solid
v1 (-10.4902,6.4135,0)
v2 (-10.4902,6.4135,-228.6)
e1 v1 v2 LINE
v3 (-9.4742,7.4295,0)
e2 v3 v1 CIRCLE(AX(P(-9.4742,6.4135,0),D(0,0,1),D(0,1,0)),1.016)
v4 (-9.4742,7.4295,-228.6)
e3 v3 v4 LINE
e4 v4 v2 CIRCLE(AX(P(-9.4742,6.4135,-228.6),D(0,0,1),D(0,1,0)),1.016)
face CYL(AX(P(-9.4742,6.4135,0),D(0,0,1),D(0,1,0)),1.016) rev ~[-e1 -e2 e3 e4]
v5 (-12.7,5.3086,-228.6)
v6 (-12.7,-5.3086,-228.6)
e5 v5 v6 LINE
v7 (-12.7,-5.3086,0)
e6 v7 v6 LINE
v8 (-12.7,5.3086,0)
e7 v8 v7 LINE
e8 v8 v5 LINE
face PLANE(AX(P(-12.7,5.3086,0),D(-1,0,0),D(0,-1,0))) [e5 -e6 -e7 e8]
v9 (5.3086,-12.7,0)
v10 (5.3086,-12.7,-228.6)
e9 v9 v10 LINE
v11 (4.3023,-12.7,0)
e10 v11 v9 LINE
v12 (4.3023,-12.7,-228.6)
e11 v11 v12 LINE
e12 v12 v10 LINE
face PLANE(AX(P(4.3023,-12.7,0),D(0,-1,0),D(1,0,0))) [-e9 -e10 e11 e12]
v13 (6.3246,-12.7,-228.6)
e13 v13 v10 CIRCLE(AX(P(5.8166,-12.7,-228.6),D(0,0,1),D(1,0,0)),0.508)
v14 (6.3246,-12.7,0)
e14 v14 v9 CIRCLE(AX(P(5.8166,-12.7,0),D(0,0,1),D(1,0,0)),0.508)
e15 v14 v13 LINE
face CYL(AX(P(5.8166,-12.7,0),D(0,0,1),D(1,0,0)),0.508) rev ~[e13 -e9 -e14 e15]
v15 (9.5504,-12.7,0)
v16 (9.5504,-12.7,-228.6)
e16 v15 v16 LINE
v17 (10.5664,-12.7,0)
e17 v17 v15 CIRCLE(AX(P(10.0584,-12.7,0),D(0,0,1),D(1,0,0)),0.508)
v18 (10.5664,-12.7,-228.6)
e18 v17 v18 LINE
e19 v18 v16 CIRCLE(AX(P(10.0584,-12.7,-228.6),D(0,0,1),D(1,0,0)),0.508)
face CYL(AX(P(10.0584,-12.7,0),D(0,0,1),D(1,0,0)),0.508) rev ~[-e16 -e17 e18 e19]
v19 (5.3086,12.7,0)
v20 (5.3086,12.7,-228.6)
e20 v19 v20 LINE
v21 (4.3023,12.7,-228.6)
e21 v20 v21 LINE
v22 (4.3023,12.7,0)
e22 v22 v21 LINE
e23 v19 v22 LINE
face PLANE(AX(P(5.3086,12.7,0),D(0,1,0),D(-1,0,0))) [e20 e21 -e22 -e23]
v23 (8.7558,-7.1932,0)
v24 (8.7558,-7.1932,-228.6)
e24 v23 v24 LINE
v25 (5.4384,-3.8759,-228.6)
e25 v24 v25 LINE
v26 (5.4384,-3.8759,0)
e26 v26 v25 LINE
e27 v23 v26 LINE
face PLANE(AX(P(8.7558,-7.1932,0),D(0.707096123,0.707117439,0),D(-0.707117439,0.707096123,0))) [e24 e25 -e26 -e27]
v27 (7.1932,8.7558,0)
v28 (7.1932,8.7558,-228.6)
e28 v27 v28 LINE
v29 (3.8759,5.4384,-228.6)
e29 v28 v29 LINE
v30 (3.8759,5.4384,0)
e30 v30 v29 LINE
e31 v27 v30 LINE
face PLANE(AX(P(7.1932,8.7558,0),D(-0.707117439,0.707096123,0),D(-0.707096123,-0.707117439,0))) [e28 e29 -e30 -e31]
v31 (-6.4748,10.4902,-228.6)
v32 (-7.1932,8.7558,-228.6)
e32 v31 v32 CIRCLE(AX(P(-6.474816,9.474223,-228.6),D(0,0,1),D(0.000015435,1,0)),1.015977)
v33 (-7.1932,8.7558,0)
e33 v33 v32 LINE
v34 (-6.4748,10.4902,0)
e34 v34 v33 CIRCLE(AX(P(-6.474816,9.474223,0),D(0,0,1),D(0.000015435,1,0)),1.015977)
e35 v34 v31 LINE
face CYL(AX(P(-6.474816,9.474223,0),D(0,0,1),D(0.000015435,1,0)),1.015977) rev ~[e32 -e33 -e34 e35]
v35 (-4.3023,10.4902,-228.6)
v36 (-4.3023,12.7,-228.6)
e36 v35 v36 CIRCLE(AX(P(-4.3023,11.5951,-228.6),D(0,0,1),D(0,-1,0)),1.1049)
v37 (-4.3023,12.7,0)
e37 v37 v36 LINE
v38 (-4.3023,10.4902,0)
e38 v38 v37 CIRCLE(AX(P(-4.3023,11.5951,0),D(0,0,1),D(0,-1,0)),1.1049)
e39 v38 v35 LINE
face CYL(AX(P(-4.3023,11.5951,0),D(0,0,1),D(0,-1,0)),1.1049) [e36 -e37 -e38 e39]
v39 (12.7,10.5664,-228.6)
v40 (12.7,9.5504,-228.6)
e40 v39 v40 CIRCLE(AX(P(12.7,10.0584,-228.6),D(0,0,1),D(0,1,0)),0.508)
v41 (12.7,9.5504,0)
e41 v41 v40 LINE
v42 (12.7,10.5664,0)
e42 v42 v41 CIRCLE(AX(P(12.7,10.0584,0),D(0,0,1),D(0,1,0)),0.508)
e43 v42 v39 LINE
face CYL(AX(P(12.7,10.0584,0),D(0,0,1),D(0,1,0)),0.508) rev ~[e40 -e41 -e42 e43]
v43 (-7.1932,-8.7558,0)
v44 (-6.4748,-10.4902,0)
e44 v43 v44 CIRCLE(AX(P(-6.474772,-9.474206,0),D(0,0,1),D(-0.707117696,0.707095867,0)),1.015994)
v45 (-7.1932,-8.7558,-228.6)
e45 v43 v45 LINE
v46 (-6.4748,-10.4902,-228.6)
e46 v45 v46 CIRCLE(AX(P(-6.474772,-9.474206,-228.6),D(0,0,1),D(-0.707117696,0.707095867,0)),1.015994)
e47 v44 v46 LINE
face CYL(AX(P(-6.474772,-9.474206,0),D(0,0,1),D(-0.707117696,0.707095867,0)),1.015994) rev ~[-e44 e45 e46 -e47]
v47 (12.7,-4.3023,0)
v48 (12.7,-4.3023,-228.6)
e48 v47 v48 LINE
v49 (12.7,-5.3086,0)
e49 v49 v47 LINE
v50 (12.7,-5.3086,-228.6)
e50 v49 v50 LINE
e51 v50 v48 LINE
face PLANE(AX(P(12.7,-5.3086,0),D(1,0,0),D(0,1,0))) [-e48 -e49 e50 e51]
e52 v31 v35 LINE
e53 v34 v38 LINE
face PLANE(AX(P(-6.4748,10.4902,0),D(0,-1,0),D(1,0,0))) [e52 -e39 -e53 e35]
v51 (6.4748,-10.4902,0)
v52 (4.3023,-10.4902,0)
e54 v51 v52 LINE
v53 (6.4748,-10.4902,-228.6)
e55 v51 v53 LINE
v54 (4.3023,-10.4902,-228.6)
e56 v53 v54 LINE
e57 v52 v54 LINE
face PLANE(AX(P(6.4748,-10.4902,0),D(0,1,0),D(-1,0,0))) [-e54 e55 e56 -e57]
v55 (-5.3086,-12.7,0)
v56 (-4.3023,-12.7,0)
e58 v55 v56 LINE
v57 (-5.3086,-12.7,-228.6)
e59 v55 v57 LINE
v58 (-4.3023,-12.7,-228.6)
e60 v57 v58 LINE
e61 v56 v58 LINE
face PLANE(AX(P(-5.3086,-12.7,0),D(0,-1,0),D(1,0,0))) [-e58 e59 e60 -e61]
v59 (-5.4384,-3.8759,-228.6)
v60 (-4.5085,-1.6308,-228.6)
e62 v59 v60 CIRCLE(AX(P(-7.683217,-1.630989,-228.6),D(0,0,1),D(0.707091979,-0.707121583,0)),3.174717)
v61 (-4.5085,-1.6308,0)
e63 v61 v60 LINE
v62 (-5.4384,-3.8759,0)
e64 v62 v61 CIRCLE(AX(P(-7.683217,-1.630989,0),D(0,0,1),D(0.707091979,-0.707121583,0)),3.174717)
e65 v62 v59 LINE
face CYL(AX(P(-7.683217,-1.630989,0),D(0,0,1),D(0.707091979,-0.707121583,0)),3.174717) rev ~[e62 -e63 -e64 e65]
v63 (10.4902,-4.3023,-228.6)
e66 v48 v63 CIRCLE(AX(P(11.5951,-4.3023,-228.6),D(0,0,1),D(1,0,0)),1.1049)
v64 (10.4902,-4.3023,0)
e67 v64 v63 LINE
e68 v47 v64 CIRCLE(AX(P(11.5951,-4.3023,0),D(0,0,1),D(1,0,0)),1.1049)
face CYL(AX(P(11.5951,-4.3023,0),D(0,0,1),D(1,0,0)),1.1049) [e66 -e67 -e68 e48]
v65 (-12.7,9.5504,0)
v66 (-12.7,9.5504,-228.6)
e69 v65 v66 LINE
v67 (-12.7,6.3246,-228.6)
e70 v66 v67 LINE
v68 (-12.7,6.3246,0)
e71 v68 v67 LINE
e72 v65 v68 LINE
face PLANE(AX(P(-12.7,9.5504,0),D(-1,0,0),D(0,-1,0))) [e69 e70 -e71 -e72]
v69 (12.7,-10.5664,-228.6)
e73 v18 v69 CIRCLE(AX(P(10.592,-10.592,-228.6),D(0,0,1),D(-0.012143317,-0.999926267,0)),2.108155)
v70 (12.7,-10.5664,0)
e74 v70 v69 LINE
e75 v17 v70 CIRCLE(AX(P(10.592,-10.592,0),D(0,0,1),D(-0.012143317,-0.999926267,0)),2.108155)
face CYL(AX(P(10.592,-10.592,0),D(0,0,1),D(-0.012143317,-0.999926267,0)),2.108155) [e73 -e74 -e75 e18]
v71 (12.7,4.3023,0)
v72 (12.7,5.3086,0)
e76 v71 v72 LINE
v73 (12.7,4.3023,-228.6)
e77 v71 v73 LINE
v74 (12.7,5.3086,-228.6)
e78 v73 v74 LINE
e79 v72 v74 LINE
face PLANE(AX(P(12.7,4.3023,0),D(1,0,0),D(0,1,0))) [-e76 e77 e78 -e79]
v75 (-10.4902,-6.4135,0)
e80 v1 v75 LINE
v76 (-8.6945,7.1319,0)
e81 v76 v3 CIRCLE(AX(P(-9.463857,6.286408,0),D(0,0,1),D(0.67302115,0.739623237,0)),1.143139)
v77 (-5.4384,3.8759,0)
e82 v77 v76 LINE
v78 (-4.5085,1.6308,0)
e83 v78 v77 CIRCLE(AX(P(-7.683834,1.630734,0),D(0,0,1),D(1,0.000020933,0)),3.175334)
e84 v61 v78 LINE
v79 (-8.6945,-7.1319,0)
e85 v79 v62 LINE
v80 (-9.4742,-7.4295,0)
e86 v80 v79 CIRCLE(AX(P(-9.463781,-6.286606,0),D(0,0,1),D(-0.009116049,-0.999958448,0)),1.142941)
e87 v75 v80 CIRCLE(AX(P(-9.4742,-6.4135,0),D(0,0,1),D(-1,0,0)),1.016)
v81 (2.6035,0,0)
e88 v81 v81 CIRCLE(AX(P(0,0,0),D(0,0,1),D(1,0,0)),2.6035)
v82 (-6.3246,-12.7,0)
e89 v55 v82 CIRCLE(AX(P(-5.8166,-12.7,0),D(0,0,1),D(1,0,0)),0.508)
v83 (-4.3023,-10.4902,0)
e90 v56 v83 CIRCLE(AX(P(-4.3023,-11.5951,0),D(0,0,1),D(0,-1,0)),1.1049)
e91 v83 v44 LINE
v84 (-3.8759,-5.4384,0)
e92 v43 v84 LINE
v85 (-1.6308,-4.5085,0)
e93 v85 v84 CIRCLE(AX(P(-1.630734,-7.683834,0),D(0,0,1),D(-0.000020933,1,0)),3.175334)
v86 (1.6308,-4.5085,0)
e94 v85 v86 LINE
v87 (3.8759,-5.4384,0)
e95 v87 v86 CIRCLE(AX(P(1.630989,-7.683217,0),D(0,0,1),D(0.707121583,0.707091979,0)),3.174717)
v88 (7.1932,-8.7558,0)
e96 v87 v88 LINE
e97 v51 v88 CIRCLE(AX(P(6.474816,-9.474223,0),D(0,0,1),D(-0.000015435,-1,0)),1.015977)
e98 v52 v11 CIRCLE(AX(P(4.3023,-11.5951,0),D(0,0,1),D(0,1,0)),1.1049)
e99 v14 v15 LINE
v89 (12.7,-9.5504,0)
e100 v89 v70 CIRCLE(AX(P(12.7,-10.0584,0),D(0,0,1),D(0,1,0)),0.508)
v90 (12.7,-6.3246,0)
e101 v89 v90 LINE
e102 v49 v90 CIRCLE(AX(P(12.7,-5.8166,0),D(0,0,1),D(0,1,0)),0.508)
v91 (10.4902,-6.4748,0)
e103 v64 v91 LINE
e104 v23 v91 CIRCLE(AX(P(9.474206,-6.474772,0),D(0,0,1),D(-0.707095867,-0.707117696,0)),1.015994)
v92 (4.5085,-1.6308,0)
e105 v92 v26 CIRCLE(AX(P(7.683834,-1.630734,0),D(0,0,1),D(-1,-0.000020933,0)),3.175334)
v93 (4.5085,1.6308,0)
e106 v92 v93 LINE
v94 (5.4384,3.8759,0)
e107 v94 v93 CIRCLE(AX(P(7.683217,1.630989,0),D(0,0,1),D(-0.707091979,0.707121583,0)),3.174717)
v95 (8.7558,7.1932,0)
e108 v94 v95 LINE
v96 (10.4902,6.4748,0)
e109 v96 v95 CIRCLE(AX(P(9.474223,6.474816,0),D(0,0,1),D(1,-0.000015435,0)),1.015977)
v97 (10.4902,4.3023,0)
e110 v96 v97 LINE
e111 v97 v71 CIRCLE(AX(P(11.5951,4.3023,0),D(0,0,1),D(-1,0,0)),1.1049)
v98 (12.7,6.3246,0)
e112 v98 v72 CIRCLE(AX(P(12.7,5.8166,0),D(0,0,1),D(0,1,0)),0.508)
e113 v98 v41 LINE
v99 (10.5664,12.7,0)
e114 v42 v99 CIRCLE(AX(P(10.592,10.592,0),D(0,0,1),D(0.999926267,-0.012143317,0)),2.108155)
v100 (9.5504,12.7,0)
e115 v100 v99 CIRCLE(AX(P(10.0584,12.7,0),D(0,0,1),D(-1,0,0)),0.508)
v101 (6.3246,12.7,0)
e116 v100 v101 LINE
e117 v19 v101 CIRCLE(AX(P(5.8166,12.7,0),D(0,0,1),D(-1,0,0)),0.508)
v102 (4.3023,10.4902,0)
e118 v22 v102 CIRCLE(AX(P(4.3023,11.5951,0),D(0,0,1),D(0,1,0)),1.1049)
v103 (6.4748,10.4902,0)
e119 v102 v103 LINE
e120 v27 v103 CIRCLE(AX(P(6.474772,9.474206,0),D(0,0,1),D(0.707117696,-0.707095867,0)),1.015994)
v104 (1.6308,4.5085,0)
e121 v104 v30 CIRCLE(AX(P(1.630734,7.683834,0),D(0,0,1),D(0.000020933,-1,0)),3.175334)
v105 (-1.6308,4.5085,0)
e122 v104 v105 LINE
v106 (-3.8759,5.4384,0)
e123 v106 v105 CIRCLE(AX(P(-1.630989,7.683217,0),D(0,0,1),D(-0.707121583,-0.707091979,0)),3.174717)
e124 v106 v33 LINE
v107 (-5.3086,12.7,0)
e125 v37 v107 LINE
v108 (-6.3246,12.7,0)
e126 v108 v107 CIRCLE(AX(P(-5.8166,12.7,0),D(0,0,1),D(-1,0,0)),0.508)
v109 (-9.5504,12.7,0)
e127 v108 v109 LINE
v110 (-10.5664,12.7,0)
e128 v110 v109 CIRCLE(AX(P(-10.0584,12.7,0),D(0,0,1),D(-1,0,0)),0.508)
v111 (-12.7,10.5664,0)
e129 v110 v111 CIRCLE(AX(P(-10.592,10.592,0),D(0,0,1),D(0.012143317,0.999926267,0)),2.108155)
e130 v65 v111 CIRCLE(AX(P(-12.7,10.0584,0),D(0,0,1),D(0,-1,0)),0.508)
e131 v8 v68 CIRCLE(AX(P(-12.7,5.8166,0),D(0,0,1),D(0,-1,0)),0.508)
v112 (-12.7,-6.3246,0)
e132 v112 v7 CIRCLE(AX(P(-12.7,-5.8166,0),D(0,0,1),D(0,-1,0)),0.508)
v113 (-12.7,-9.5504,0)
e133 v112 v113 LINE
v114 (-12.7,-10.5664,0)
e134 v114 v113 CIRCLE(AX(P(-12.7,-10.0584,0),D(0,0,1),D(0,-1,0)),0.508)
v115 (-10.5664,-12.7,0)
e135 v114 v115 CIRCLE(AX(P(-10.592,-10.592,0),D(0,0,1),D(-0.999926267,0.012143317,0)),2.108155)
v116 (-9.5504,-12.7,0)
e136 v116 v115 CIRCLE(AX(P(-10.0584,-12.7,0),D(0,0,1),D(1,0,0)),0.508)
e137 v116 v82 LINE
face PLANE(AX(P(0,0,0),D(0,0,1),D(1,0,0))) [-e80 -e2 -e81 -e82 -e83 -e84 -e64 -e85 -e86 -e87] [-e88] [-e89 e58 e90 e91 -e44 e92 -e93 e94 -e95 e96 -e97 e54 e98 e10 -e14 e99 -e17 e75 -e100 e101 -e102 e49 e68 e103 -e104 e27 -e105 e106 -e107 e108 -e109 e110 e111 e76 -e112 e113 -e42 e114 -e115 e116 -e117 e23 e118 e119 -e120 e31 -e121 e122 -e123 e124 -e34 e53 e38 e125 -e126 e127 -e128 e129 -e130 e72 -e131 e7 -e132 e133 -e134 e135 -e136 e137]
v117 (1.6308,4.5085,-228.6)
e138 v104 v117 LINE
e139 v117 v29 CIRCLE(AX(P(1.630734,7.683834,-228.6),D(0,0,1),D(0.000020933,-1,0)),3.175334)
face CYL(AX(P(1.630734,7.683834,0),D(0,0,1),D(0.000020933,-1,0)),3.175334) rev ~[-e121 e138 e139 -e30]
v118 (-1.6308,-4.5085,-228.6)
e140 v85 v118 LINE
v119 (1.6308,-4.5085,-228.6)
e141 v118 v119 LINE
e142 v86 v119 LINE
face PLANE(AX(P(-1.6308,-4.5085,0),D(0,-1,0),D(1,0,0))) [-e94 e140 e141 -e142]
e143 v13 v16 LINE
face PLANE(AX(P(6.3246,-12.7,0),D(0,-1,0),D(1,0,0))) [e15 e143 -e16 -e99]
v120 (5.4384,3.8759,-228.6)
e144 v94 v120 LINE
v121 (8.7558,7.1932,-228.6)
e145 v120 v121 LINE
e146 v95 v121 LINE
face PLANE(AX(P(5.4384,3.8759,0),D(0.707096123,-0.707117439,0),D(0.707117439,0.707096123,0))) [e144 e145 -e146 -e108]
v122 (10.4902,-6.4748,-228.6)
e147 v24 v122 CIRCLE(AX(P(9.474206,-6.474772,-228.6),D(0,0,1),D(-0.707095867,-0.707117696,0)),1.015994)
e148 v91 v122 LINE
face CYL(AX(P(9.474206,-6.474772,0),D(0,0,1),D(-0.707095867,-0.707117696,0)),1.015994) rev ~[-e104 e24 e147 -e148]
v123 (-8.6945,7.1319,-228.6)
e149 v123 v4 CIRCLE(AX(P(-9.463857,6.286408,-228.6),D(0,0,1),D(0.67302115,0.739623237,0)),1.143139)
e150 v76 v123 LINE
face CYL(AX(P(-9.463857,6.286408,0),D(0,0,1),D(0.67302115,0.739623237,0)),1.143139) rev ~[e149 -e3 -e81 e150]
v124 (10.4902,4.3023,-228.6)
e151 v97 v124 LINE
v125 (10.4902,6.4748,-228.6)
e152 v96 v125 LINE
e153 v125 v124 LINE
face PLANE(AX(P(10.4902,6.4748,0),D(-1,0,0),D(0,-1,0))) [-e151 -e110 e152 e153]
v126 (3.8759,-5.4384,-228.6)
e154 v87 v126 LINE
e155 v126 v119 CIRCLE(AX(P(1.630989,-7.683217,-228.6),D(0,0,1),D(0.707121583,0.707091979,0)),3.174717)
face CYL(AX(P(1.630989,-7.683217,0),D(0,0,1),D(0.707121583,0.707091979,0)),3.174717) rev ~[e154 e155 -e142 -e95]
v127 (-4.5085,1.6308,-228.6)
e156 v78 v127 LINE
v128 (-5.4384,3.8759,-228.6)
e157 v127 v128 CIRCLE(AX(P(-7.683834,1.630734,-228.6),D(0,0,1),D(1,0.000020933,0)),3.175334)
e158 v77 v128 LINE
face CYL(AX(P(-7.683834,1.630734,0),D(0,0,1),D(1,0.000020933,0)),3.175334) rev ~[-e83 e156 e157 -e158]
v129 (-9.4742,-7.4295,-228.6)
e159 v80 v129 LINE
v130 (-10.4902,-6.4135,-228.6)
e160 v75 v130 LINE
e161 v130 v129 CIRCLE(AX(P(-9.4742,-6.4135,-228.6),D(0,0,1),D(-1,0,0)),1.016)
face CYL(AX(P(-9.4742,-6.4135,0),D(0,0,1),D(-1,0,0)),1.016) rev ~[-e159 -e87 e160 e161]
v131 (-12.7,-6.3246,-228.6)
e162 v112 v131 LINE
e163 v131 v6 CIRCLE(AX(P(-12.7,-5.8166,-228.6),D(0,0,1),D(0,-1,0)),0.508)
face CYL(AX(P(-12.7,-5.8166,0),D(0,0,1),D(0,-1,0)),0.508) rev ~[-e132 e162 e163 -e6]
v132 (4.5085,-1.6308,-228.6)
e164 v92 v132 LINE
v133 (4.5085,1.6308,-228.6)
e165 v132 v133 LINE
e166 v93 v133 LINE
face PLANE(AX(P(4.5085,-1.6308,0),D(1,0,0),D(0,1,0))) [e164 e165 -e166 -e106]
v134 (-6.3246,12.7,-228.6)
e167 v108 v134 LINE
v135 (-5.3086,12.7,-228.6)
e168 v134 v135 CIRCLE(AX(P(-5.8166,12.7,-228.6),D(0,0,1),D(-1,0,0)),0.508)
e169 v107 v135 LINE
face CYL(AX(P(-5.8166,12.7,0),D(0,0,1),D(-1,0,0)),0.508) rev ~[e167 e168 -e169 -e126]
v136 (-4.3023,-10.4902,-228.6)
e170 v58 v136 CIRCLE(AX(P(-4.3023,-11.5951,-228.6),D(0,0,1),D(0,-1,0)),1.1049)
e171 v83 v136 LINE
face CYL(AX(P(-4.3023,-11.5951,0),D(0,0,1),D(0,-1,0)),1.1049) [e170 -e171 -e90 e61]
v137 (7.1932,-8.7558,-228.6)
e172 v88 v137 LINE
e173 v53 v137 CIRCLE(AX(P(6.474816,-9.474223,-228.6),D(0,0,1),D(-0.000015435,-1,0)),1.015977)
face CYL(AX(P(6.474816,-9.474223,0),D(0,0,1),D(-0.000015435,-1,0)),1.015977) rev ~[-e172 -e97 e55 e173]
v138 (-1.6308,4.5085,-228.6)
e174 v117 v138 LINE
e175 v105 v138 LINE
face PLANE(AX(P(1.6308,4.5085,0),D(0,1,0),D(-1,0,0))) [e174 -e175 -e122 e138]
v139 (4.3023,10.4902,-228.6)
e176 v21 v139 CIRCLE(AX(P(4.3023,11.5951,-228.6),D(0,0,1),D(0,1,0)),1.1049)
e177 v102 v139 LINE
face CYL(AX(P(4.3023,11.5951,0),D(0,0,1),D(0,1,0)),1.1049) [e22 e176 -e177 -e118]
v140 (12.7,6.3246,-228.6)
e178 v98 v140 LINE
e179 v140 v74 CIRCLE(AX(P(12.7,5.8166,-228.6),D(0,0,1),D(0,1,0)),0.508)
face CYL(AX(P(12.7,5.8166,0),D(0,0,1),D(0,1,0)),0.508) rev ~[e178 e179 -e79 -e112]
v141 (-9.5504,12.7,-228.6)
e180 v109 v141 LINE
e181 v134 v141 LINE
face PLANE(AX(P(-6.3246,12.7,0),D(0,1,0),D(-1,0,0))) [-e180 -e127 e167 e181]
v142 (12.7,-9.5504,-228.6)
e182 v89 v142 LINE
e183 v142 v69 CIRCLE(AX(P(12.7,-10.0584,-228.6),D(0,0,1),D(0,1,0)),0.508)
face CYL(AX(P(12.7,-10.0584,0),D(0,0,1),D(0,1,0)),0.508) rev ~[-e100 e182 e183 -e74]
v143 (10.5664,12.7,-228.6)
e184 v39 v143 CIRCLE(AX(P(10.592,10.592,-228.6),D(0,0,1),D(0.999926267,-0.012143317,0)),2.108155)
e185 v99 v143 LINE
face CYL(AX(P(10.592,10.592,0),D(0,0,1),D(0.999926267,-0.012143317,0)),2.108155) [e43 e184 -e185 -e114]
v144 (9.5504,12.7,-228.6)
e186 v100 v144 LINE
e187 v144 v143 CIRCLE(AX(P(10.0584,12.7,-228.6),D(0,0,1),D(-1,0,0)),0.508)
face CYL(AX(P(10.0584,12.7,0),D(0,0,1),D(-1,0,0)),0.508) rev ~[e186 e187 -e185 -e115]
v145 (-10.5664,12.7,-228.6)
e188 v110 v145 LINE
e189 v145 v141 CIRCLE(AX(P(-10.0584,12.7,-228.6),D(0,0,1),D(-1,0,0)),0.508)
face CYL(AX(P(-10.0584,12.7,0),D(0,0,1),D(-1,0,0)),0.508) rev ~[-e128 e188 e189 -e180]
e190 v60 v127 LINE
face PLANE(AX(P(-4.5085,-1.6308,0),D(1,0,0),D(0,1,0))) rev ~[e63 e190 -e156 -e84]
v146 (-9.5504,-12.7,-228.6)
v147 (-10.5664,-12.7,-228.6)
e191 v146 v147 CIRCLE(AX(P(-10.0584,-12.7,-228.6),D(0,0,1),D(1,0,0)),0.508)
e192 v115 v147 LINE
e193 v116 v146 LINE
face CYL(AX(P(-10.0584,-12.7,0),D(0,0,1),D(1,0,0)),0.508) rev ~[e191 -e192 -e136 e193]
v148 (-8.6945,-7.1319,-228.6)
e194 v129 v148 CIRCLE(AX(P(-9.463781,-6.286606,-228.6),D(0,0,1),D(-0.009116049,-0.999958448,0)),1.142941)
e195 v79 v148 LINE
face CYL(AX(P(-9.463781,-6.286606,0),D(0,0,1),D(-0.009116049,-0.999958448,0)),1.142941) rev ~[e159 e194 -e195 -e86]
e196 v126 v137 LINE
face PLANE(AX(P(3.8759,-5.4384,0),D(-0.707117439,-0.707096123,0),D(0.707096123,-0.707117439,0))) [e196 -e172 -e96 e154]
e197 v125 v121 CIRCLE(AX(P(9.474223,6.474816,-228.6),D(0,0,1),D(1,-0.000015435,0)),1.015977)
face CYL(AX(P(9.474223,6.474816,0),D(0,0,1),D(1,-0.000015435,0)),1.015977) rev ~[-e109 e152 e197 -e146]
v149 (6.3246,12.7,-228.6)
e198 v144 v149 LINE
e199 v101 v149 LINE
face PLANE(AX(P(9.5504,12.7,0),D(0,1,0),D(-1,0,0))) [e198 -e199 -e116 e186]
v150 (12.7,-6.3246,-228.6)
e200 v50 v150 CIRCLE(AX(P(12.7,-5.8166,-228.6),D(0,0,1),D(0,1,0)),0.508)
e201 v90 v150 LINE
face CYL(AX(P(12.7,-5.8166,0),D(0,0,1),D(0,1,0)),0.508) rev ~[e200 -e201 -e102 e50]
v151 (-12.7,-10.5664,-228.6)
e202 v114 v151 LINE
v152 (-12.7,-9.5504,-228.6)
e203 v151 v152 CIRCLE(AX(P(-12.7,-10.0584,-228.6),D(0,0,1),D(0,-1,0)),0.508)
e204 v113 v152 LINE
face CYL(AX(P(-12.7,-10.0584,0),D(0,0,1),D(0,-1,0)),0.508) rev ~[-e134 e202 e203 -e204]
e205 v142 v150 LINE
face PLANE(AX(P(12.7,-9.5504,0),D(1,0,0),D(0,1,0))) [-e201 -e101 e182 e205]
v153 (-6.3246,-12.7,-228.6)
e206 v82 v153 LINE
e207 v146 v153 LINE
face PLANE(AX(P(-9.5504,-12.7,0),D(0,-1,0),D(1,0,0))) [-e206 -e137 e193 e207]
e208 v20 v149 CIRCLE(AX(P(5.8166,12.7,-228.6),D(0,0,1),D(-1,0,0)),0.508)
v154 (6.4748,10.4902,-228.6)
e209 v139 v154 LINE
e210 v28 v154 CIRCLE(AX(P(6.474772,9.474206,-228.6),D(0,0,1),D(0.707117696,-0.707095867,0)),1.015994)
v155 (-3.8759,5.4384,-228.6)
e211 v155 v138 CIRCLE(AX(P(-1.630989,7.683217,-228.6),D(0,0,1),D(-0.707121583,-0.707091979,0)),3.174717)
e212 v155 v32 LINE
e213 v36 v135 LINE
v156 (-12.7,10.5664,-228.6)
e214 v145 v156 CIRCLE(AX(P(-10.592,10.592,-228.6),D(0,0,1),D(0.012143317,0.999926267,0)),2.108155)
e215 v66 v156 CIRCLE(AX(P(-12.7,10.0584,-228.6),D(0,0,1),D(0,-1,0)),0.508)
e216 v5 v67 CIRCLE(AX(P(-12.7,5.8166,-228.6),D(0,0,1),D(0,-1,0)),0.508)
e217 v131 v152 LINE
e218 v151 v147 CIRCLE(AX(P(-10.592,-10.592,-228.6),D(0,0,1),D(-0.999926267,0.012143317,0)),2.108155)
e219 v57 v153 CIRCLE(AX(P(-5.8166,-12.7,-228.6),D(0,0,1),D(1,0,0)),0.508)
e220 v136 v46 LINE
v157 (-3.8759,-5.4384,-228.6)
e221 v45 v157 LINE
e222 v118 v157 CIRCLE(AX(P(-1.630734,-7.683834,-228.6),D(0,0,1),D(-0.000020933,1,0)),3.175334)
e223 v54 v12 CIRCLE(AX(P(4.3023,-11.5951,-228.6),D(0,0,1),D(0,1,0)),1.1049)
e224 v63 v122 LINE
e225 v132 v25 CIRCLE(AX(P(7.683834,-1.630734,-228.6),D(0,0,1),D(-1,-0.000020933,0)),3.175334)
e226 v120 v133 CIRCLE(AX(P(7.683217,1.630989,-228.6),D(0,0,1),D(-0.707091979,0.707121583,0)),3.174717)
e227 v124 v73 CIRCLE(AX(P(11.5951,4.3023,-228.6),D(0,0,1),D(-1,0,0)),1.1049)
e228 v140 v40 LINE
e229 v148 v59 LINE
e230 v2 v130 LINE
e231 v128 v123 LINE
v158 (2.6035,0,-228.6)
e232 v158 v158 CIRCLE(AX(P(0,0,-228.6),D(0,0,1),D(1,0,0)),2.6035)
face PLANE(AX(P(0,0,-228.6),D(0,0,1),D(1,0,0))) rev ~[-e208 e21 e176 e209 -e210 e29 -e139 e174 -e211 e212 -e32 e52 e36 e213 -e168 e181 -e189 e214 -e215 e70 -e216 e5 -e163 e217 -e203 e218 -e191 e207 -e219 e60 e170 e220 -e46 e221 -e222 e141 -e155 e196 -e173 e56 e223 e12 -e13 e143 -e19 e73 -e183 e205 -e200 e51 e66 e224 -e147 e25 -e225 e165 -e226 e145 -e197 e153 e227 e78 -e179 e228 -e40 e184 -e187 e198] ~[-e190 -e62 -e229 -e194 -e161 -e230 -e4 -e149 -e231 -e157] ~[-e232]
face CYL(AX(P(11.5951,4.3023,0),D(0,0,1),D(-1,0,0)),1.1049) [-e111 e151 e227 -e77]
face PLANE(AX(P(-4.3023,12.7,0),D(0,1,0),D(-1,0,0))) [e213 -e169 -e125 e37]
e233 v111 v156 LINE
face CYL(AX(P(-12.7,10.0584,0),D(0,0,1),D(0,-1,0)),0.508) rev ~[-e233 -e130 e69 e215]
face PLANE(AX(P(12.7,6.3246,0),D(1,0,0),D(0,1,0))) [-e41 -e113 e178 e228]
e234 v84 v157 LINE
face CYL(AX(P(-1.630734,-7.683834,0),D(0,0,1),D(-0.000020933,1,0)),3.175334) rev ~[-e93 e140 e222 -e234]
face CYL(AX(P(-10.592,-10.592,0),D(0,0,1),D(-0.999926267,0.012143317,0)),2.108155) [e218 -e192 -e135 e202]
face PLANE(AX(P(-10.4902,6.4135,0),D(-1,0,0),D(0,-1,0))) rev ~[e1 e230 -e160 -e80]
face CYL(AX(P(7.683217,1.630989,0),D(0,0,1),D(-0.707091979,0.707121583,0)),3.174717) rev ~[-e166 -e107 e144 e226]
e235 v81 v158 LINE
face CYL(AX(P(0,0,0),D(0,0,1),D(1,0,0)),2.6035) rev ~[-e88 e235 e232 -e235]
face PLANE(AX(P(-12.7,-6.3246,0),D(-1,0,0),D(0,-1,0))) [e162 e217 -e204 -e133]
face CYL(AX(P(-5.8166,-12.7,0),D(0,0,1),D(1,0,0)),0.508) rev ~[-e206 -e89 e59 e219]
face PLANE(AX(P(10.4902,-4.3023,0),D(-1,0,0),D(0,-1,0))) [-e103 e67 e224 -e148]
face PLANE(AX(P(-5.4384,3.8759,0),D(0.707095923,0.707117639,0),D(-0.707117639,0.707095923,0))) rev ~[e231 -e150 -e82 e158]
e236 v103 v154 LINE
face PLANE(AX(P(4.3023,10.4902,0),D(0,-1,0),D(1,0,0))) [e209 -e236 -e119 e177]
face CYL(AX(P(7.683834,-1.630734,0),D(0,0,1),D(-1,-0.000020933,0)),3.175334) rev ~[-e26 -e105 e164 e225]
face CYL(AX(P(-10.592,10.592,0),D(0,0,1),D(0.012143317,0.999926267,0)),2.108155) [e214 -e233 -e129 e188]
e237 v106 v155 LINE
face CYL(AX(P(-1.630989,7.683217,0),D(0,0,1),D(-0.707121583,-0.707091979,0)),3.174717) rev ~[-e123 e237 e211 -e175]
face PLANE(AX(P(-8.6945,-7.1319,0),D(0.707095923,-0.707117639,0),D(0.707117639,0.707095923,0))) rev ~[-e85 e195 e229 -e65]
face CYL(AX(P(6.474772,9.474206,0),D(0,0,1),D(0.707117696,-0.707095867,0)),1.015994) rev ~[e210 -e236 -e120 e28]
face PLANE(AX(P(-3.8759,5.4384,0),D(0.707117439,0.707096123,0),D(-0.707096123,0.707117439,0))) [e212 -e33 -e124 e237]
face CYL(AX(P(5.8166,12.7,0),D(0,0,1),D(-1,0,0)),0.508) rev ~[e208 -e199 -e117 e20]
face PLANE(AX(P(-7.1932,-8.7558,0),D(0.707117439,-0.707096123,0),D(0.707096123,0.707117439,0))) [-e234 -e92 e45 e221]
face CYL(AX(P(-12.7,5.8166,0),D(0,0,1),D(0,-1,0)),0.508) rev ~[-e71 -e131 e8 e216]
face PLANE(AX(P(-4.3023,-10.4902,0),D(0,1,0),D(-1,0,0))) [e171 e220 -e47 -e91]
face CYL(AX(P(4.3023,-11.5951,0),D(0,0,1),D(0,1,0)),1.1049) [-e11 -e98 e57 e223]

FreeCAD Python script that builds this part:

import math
import FreeCAD as App
import Part
import Sketcher
Q = App.Units.Quantity

doc = App.newDocument("Part")
body = doc.addObject("PartDesign::Body", "Body")

# Sketch on XY plane
sketch1 = body.newObject("Sketcher::SketchObject", "Sketch")
sketch1.AttachmentSupport = (doc.getObject("XY_Plane"), [""])
sketch1.MapMode = "FlatFace"
sketch1.addGeometry([
    Part.ArcOfCircle(Part.Circle(App.Vector(-12.7, -10.0584, 0), App.Vector(0, 0, 1), 0.508), math.radians(-90), math.radians(90)),  # 0
    Part.ArcOfCircle(Part.Circle(App.Vector(-10.592, -10.592, 0), App.Vector(0, 0, 1), 2.108155), math.radians(179.304222), math.radians(270.695778)),  # 1
    Part.ArcOfCircle(Part.Circle(App.Vector(-10.0584, -12.7, 0), App.Vector(0, 0, 1), 0.508), math.radians(0), math.radians(180)),  # 2
    Part.LineSegment(App.Vector(-9.5504, -12.7, 0), App.Vector(-6.3246, -12.7, 0)),  # 3
    Part.ArcOfCircle(Part.Circle(App.Vector(-5.8166, -12.7, 0), App.Vector(0, 0, 1), 0.508), math.radians(0), math.radians(180)),  # 4
    Part.LineSegment(App.Vector(-5.3086, -12.7, 0), App.Vector(-4.3023, -12.7, 0)),  # 5
    Part.ArcOfCircle(Part.Circle(App.Vector(-4.3023, -11.5951, 0), App.Vector(0, 0, 1), 1.1049), math.radians(-90), math.radians(90)),  # 6
    Part.LineSegment(App.Vector(-4.3023, -10.4902, 0), App.Vector(-6.4748, -10.4902, 0)),  # 7
    Part.ArcOfCircle(Part.Circle(App.Vector(-6.4748, -9.4742, 0), App.Vector(0, 0, 1), 1.015971), math.radians(135), math.radians(270)),  # 8
    Part.LineSegment(App.Vector(-7.1932, -8.7558, 0), App.Vector(-3.8759, -5.4384, 0)),  # 9
    Part.ArcOfCircle(Part.Circle(App.Vector(-1.6308, -7.6835, 0), App.Vector(0, 0, 1), 3.175), math.radians(90), math.radians(135)),  # 10
    Part.LineSegment(App.Vector(-1.6308, -4.5085, 0), App.Vector(1.6308, -4.5085, 0)),  # 11
    Part.ArcOfCircle(Part.Circle(App.Vector(1.6308, -7.6835, 0), App.Vector(0, 0, 1), 3.175051), math.radians(45), math.radians(90)),  # 12
    Part.LineSegment(App.Vector(3.8759, -5.4384, 0), App.Vector(7.1932, -8.7558, 0)),  # 13
    Part.ArcOfCircle(Part.Circle(App.Vector(6.4748, -9.4742, 0), App.Vector(0, 0, 1), 1.016), math.radians(-90), math.radians(45)),  # 14
    Part.LineSegment(App.Vector(6.4748, -10.4902, 0), App.Vector(4.3023, -10.4902, 0)),  # 15
    Part.ArcOfCircle(Part.Circle(App.Vector(4.3023, -11.5951, 0), App.Vector(0, 0, 1), 1.1049), math.radians(90), math.radians(270)),  # 16
    Part.LineSegment(App.Vector(4.3023, -12.7, 0), App.Vector(5.3086, -12.7, 0)),  # 17
    Part.ArcOfCircle(Part.Circle(App.Vector(5.8166, -12.7, 0), App.Vector(0, 0, 1), 0.508), math.radians(0), math.radians(180)),  # 18
    Part.LineSegment(App.Vector(6.3246, -12.7, 0), App.Vector(9.5504, -12.7, 0)),  # 19
    Part.ArcOfCircle(Part.Circle(App.Vector(10.0584, -12.7, 0), App.Vector(0, 0, 1), 0.508), math.radians(0), math.radians(180)),  # 20
    Part.ArcOfCircle(Part.Circle(App.Vector(10.592, -10.592, 0), App.Vector(0, 0, 1), 2.108155), math.radians(-90.695778), math.radians(0.695778)),  # 21
    Part.ArcOfCircle(Part.Circle(App.Vector(12.7, -10.0584, 0), App.Vector(0, 0, 1), 0.508), math.radians(90), math.radians(270)),  # 22
    Part.LineSegment(App.Vector(12.7, -9.5504, 0), App.Vector(12.7, -6.3246, 0)),  # 23
    Part.ArcOfCircle(Part.Circle(App.Vector(12.7, -5.8166, 0), App.Vector(0, 0, 1), 0.508), math.radians(90), math.radians(270)),  # 24
    Part.LineSegment(App.Vector(12.7, -5.3086, 0), App.Vector(12.7, -4.3023, 0)),  # 25
    Part.ArcOfCircle(Part.Circle(App.Vector(11.5951, -4.3023, 0), App.Vector(0, 0, 1), 1.1049), math.radians(0), math.radians(180)),  # 26
    Part.LineSegment(App.Vector(10.4902, -4.3023, 0), App.Vector(10.4902, -6.4748, 0)),  # 27
    Part.ArcOfCircle(Part.Circle(App.Vector(9.4742, -6.4748, 0), App.Vector(0, 0, 1), 1.015971), math.radians(-135), math.radians(0)),  # 28
    Part.LineSegment(App.Vector(8.7558, -7.1932, 0), App.Vector(5.4384, -3.8759, 0)),  # 29
    Part.ArcOfCircle(Part.Circle(App.Vector(7.6835, -1.6308, 0), App.Vector(0, 0, 1), 3.175), math.radians(180), math.radians(225)),  # 30
    Part.LineSegment(App.Vector(4.5085, -1.6308, 0), App.Vector(4.5085, 1.6308, 0)),  # 31
    Part.ArcOfCircle(Part.Circle(App.Vector(7.6835, 1.6308, 0), App.Vector(0, 0, 1), 3.175051), math.radians(135), math.radians(180)),  # 32
    Part.LineSegment(App.Vector(5.4384, 3.8759, 0), App.Vector(8.7558, 7.1932, 0)),  # 33
    Part.ArcOfCircle(Part.Circle(App.Vector(9.4742, 6.4748, 0), App.Vector(0, 0, 1), 1.016), math.radians(0), math.radians(135)),  # 34
    Part.LineSegment(App.Vector(10.4902, 6.4748, 0), App.Vector(10.4902, 4.3023, 0)),  # 35
    Part.ArcOfCircle(Part.Circle(App.Vector(11.5951, 4.3023, 0), App.Vector(0, 0, 1), 1.1049), math.radians(180), math.radians(360)),  # 36
    Part.LineSegment(App.Vector(12.7, 4.3023, 0), App.Vector(12.7, 5.3086, 0)),  # 37
    Part.ArcOfCircle(Part.Circle(App.Vector(12.7, 5.8166, 0), App.Vector(0, 0, 1), 0.508), math.radians(90), math.radians(270)),  # 38
    Part.LineSegment(App.Vector(12.7, 6.3246, 0), App.Vector(12.7, 9.5504, 0)),  # 39
    Part.ArcOfCircle(Part.Circle(App.Vector(12.7, 10.0584, 0), App.Vector(0, 0, 1), 0.508), math.radians(90), math.radians(270)),  # 40
    Part.ArcOfCircle(Part.Circle(App.Vector(10.592, 10.592, 0), App.Vector(0, 0, 1), 2.108155), math.radians(-0.695778), math.radians(90.695778)),  # 41
    Part.ArcOfCircle(Part.Circle(App.Vector(10.0584, 12.7, 0), App.Vector(0, 0, 1), 0.508), math.radians(180), math.radians(360)),  # 42
    Part.LineSegment(App.Vector(9.5504, 12.7, 0), App.Vector(6.3246, 12.7, 0)),  # 43
    Part.ArcOfCircle(Part.Circle(App.Vector(5.8166, 12.7, 0), App.Vector(0, 0, 1), 0.508), math.radians(180), math.radians(360)),  # 44
    Part.LineSegment(App.Vector(5.3086, 12.7, 0), App.Vector(4.3023, 12.7, 0)),  # 45
    Part.ArcOfCircle(Part.Circle(App.Vector(4.3023, 11.5951, 0), App.Vector(0, 0, 1), 1.1049), math.radians(90), math.radians(270)),  # 46
    Part.LineSegment(App.Vector(4.3023, 10.4902, 0), App.Vector(6.4748, 10.4902, 0)),  # 47
    Part.ArcOfCircle(Part.Circle(App.Vector(6.4748, 9.4742, 0), App.Vector(0, 0, 1), 1.015971), math.radians(-45), math.radians(90)),  # 48
    Part.LineSegment(App.Vector(7.1932, 8.7558, 0), App.Vector(3.8759, 5.4384, 0)),  # 49
    Part.ArcOfCircle(Part.Circle(App.Vector(1.6308, 7.6835, 0), App.Vector(0, 0, 1), 3.175), math.radians(-90), math.radians(-45)),  # 50
    Part.LineSegment(App.Vector(1.6308, 4.5085, 0), App.Vector(-1.6308, 4.5085, 0)),  # 51
    Part.ArcOfCircle(Part.Circle(App.Vector(-1.6308, 7.6835, 0), App.Vector(0, 0, 1), 3.175051), math.radians(-135), math.radians(-90)),  # 52
    Part.LineSegment(App.Vector(-3.8759, 5.4384, 0), App.Vector(-7.1932, 8.7558, 0)),  # 53
    Part.ArcOfCircle(Part.Circle(App.Vector(-6.4748, 9.4742, 0), App.Vector(0, 0, 1), 1.016), math.radians(90), math.radians(225)),  # 54
    Part.LineSegment(App.Vector(-6.4748, 10.4902, 0), App.Vector(-4.3023, 10.4902, 0)),  # 55
    Part.ArcOfCircle(Part.Circle(App.Vector(-4.3023, 11.5951, 0), App.Vector(0, 0, 1), 1.1049), math.radians(-90), math.radians(90)),  # 56
    Part.LineSegment(App.Vector(-4.3023, 12.7, 0), App.Vector(-5.3086, 12.7, 0)),  # 57
    Part.ArcOfCircle(Part.Circle(App.Vector(-5.8166, 12.7, 0), App.Vector(0, 0, 1), 0.508), math.radians(180), math.radians(360)),  # 58
    Part.LineSegment(App.Vector(-6.3246, 12.7, 0), App.Vector(-9.5504, 12.7, 0)),  # 59
    Part.ArcOfCircle(Part.Circle(App.Vector(-10.0584, 12.7, 0), App.Vector(0, 0, 1), 0.508), math.radians(180), math.radians(360)),  # 60
    Part.ArcOfCircle(Part.Circle(App.Vector(-10.592, 10.592, 0), App.Vector(0, 0, 1), 2.108155), math.radians(89.304222), math.radians(180.695778)),  # 61
    Part.ArcOfCircle(Part.Circle(App.Vector(-12.7, 10.0584, 0), App.Vector(0, 0, 1), 0.508), math.radians(-90), math.radians(90)),  # 62
    Part.LineSegment(App.Vector(-12.7, 9.5504, 0), App.Vector(-12.7, 6.3246, 0)),  # 63
    Part.ArcOfCircle(Part.Circle(App.Vector(-12.7, 5.8166, 0), App.Vector(0, 0, 1), 0.508), math.radians(-90), math.radians(90)),  # 64
    Part.LineSegment(App.Vector(-12.7, 5.3086, 0), App.Vector(-12.7, -5.3086, 0)),  # 65
    Part.ArcOfCircle(Part.Circle(App.Vector(-12.7, -5.8166, 0), App.Vector(0, 0, 1), 0.508), math.radians(-90), math.radians(90)),  # 66
    Part.LineSegment(App.Vector(-12.7, -6.3246, 0), App.Vector(-12.7, -9.5504, 0)),  # 67
    Part.ArcOfCircle(Part.Circle(App.Vector(-9.4742, -6.4135, 0), App.Vector(0, 0, 1), 1.016), math.radians(180), math.radians(270)),  # 68
    Part.LineSegment(App.Vector(-10.4902, -6.4135, 0), App.Vector(-10.4902, 6.4135, 0)),  # 69
    Part.ArcOfCircle(Part.Circle(App.Vector(-9.4742, 6.4135, 0), App.Vector(0, 0, 1), 1.016), math.radians(90), math.radians(180)),  # 70
    Part.ArcOfCircle(Part.Circle(App.Vector(-9.4638, 6.2865, 0), App.Vector(0, 0, 1), 1.143033), math.radians(47.698325), math.radians(90.521312)),  # 71
    Part.LineSegment(App.Vector(-8.6945, 7.1319, 0), App.Vector(-5.4384, 3.8759, 0)),  # 72
    Part.ArcOfCircle(Part.Circle(App.Vector(-7.6835, 1.6308, 0), App.Vector(0, 0, 1), 3.175), math.radians(0), math.radians(45)),  # 73
    Part.LineSegment(App.Vector(-4.5085, 1.6308, 0), App.Vector(-4.5085, -1.6308, 0)),  # 74
    Part.ArcOfCircle(Part.Circle(App.Vector(-7.6835, -1.6308, 0), App.Vector(0, 0, 1), 3.175051), math.radians(-45), math.radians(0)),  # 75
    Part.LineSegment(App.Vector(-5.4384, -3.8759, 0), App.Vector(-8.6945, -7.1319, 0)),  # 76
    Part.ArcOfCircle(Part.Circle(App.Vector(-9.4638, -6.2865, 0), App.Vector(0, 0, 1), 1.143047), math.radians(-90.521312), math.radians(-47.698325)),  # 77
    Part.Circle(App.Vector(0, 0, 0), App.Vector(0, 0, 1), 2.6035),  # 78
], False)
sketch1.addConstraint([
    Sketcher.Constraint("Coincident", 0, 1, 1, 1),
    Sketcher.Constraint("Coincident", 1, 2, 2, 2),
    Sketcher.Constraint("Coincident", 2, 1, 3, 1),
    Sketcher.Constraint("Coincident", 3, 2, 4, 2),
    Sketcher.Constraint("Coincident", 4, 1, 5, 1),
    Sketcher.Constraint("Tangent", 5, 2, 6, 1),
    Sketcher.Constraint("Tangent", 6, 2, 7, 1),
    Sketcher.Constraint("Tangent", 7, 2, 8, 2),
    Sketcher.Constraint("Tangent", 8, 1, 9, 1),
    Sketcher.Constraint("Tangent", 9, 2, 10, 2),
    Sketcher.Constraint("Tangent", 10, 1, 11, 1),
    Sketcher.Constraint("Tangent", 11, 2, 12, 2),
    Sketcher.Constraint("Tangent", 12, 1, 13, 1),
    Sketcher.Constraint("Tangent", 13, 2, 14, 2),
    Sketcher.Constraint("Tangent", 14, 1, 15, 1),
    Sketcher.Constraint("Tangent", 15, 2, 16, 1),
    Sketcher.Constraint("Tangent", 16, 2, 17, 1),
    Sketcher.Constraint("Coincident", 17, 2, 18, 2),
    Sketcher.Constraint("Coincident", 18, 1, 19, 1),
    Sketcher.Constraint("Coincident", 19, 2, 20, 2),
    Sketcher.Constraint("Coincident", 20, 1, 21, 1),
    Sketcher.Constraint("Coincident", 21, 2, 22, 2),
    Sketcher.Constraint("Coincident", 22, 1, 23, 1),
    Sketcher.Constraint("Coincident", 23, 2, 24, 2),
    Sketcher.Constraint("Coincident", 24, 1, 25, 1),
    Sketcher.Constraint("Tangent", 25, 2, 26, 1),
    Sketcher.Constraint("Tangent", 26, 2, 27, 1),
    Sketcher.Constraint("Tangent", 27, 2, 28, 2),
    Sketcher.Constraint("Tangent", 28, 1, 29, 1),
    Sketcher.Constraint("Tangent", 29, 2, 30, 2),
    Sketcher.Constraint("Tangent", 30, 1, 31, 1),
    Sketcher.Constraint("Tangent", 31, 2, 32, 2),
    Sketcher.Constraint("Tangent", 32, 1, 33, 1),
    Sketcher.Constraint("Tangent", 33, 2, 34, 2),
    Sketcher.Constraint("Tangent", 34, 1, 35, 1),
    Sketcher.Constraint("Tangent", 35, 2, 36, 1),
    Sketcher.Constraint("Tangent", 36, 2, 37, 1),
    Sketcher.Constraint("Coincident", 37, 2, 38, 2),
    Sketcher.Constraint("Coincident", 38, 1, 39, 1),
    Sketcher.Constraint("Coincident", 39, 2, 40, 2),
    Sketcher.Constraint("Coincident", 40, 1, 41, 1),
    Sketcher.Constraint("Coincident", 41, 2, 42, 2),
    Sketcher.Constraint("Coincident", 42, 1, 43, 1),
    Sketcher.Constraint("Coincident", 43, 2, 44, 2),
    Sketcher.Constraint("Coincident", 44, 1, 45, 1),
    Sketcher.Constraint("Tangent", 45, 2, 46, 1),
    Sketcher.Constraint("Tangent", 46, 2, 47, 1),
    Sketcher.Constraint("Tangent", 47, 2, 48, 2),
    Sketcher.Constraint("Tangent", 48, 1, 49, 1),
    Sketcher.Constraint("Tangent", 49, 2, 50, 2),
    Sketcher.Constraint("Tangent", 50, 1, 51, 1),
    Sketcher.Constraint("Tangent", 51, 2, 52, 2),
    Sketcher.Constraint("Tangent", 52, 1, 53, 1),
    Sketcher.Constraint("Tangent", 53, 2, 54, 2),
    Sketcher.Constraint("Tangent", 54, 1, 55, 1),
    Sketcher.Constraint("Tangent", 55, 2, 56, 1),
    Sketcher.Constraint("Tangent", 56, 2, 57, 1),
    Sketcher.Constraint("Coincident", 57, 2, 58, 2),
    Sketcher.Constraint("Coincident", 58, 1, 59, 1),
    Sketcher.Constraint("Coincident", 59, 2, 60, 2),
    Sketcher.Constraint("Coincident", 60, 1, 61, 1),
    Sketcher.Constraint("Coincident", 61, 2, 62, 2),
    Sketcher.Constraint("Coincident", 62, 1, 63, 1),
    Sketcher.Constraint("Coincident", 63, 2, 64, 2),
    Sketcher.Constraint("Coincident", 64, 1, 65, 1),
    Sketcher.Constraint("Coincident", 65, 2, 66, 2),
    Sketcher.Constraint("Coincident", 66, 1, 67, 1),
    Sketcher.Constraint("Coincident", 67, 2, 0, 2),
    Sketcher.Constraint("Tangent", 68, 1, 69, 1),
    Sketcher.Constraint("Tangent", 69, 2, 70, 2),
    Sketcher.Constraint("Coincident", 70, 1, 71, 2),
    Sketcher.Constraint("Coincident", 71, 1, 72, 1),
    Sketcher.Constraint("Tangent", 72, 2, 73, 2),
    Sketcher.Constraint("Tangent", 73, 1, 74, 1),
    Sketcher.Constraint("Tangent", 74, 2, 75, 2),
    Sketcher.Constraint("Tangent", 75, 1, 76, 1),
    Sketcher.Constraint("Coincident", 76, 2, 77, 2),
    Sketcher.Constraint("Coincident", 77, 1, 68, 2),
    Sketcher.Constraint("Horizontal", 3),
    Sketcher.Constraint("Horizontal", 5),
    Sketcher.Constraint("Horizontal", 7),
    Sketcher.Constraint("Horizontal", 11),
    Sketcher.Constraint("Horizontal", 15),
    Sketcher.Constraint("Horizontal", 17),
    Sketcher.Constraint("Horizontal", 19),
    Sketcher.Constraint("Vertical", 23),
    Sketcher.Constraint("Vertical", 25),
    Sketcher.Constraint("Vertical", 27),
    Sketcher.Constraint("Vertical", 31),
    Sketcher.Constraint("Vertical", 35),
    Sketcher.Constraint("Vertical", 37),
    Sketcher.Constraint("Vertical", 39),
    Sketcher.Constraint("Horizontal", 43),
    Sketcher.Constraint("Horizontal", 45),
    Sketcher.Constraint("Horizontal", 47),
    Sketcher.Constraint("Horizontal", 51),
    Sketcher.Constraint("Horizontal", 55),
    Sketcher.Constraint("Horizontal", 57),
    Sketcher.Constraint("Horizontal", 59),
    Sketcher.Constraint("Vertical", 63),
    Sketcher.Constraint("Vertical", 65),
    Sketcher.Constraint("Vertical", 67),
    Sketcher.Constraint("Vertical", 69),
    Sketcher.Constraint("Vertical", 74),
    Sketcher.Constraint("Coincident", 78, 3, -1, 1),
    Sketcher.Constraint("Equal", 0, 2),
    Sketcher.Constraint("Equal", 2, 4),
    Sketcher.Constraint("Equal", 10, 12),
    Sketcher.Constraint("Equal", 8, 14),
    Sketcher.Constraint("Equal", 6, 16),
    Sketcher.Constraint("Equal", 4, 18),
    Sketcher.Constraint("Equal", 18, 20),
    Sketcher.Constraint("Equal", 1, 21),
    Sketcher.Constraint("Equal", 20, 22),
    Sketcher.Constraint("Equal", 22, 24),
    Sketcher.Constraint("Equal", 16, 26),
    Sketcher.Constraint("Equal", 14, 28),
    Sketcher.Constraint("Equal", 12, 30),
    Sketcher.Constraint("Equal", 30, 32),
    Sketcher.Constraint("Equal", 28, 34),
    Sketcher.Constraint("Equal", 26, 36),
    Sketcher.Constraint("Equal", 24, 38),
    Sketcher.Constraint("Equal", 38, 40),
    Sketcher.Constraint("Equal", 21, 41),
    Sketcher.Constraint("Equal", 40, 42),
    Sketcher.Constraint("Equal", 42, 44),
    Sketcher.Constraint("Equal", 36, 46),
    Sketcher.Constraint("Equal", 34, 48),
    Sketcher.Constraint("Equal", 32, 50),
    Sketcher.Constraint("Equal", 50, 52),
    Sketcher.Constraint("Equal", 48, 54),
    Sketcher.Constraint("Equal", 46, 56),
    Sketcher.Constraint("Equal", 44, 58),
    Sketcher.Constraint("Equal", 58, 60),
    Sketcher.Constraint("Equal", 41, 61),
    Sketcher.Constraint("Equal", 60, 62),
    Sketcher.Constraint("Equal", 62, 64),
    Sketcher.Constraint("Equal", 64, 66),
    Sketcher.Constraint("Equal", 54, 68),
    Sketcher.Constraint("Equal", 68, 70),
    Sketcher.Constraint("Equal", 52, 73),
    Sketcher.Constraint("Equal", 73, 75),
    Sketcher.Constraint("Equal", 71, 77),
    Sketcher.Constraint("Symmetric", 0, 3, 40, 3, -1, 1),
    Sketcher.Constraint("Symmetric", 1, 3, 41, 3, -1, 1),
    Sketcher.Constraint("Symmetric", 2, 3, 42, 3, -1, 1),
    Sketcher.Constraint("Symmetric", 4, 3, 44, 3, -1, 1),
    Sketcher.Constraint("Symmetric", 6, 3, 46, 3, -1, 1),
    Sketcher.Constraint("Symmetric", 10, 3, 50, 3, -1, 1),
    Sketcher.Constraint("Symmetric", 14, 3, 54, 3, -1, 1),
    Sketcher.Constraint("Symmetric", 18, 3, 58, 3, -1, 1),
    Sketcher.Constraint("Symmetric", 20, 3, 60, 3, -1, 1),
    Sketcher.Constraint("Symmetric", 21, 3, 61, 3, -1, 1),
    Sketcher.Constraint("Symmetric", 22, 3, 62, 3, -1, 1),
    Sketcher.Constraint("Symmetric", 24, 3, 64, 3, -1, 1),
    Sketcher.Constraint("Symmetric", 38, 3, 66, 3, -1, 1),
    Sketcher.Constraint("Symmetric", 30, 3, 73, 3, -1, 1),
    Sketcher.Constraint("Symmetric", 32, 1, 75, 1, -1, 1),
    Sketcher.Constraint("Symmetric", 8, 3, 14, 3, -2),
    Sketcher.Constraint("Symmetric", 4, 3, 18, 3, -2),
    Sketcher.Constraint("Symmetric", 2, 3, 20, 3, -2),
    Sketcher.Constraint("Symmetric", 1, 3, 21, 3, -2),
    Sketcher.Constraint("Symmetric", 0, 3, 22, 3, -2),
    Sketcher.Constraint("Symmetric", 38, 3, 64, 3, -2),
    Sketcher.Constraint("Symmetric", 49, 2, 52, 1, -2),
    Sketcher.Constraint("Symmetric", 32, 1, 72, 2, -2),
    Sketcher.Constraint("Symmetric", 28, 3, 34, 3, -1),
    Sketcher.Constraint("Symmetric", 71, 3, 77, 3, -1),
    Sketcher.Constraint("Perpendicular", 9, 13),
    Sketcher.Constraint("Parallel", 13, 29),
    Sketcher.Constraint("Perpendicular", 29, 33),
    Sketcher.Constraint("Horizontal", 2, 3, 4, 3),
    Sketcher.Constraint("Horizontal", 20, 3, 1, 2),
    Sketcher.Constraint("Horizontal", 1, 2, 2, 1),
    Sketcher.Constraint("Horizontal", 3, 2, 4, 1),
    Sketcher.Constraint("Horizontal", 17, 2, 18, 1),
    Sketcher.Constraint("Horizontal", 41, 2, 42, 1),
    Sketcher.Constraint("Horizontal", 57, 2, 58, 1),
    Sketcher.Constraint("Vertical", 22, 3, 24, 3),
    Sketcher.Constraint("Vertical", 16, 3, 46, 3),
    Sketcher.Constraint("Vertical", 6, 3, 56, 3),
    Sketcher.Constraint("Vertical", 66, 3, 0, 1),
    Sketcher.Constraint("Vertical", 21, 2, 22, 1),
    Sketcher.Constraint("Vertical", 23, 2, 24, 1),
    Sketcher.Constraint("Vertical", 37, 2, 38, 1),
    Sketcher.Constraint("Vertical", 61, 2, 62, 1),
    Sketcher.Constraint("Vertical", 63, 2, 64, 1),
    Sketcher.Constraint("Vertical", 65, 2, 66, 1),
    Sketcher.Constraint("Vertical", 68, 3, 70, 1),
    Sketcher.Constraint("Vertical", 70, 1, 77, 1),
    Sketcher.Constraint("Equal", 59, 23),
    Sketcher.Constraint("Equal", 57, 25),
    Sketcher.Constraint("Equal", 55, 27),
    Sketcher.Constraint("Equal", 51, 31),
    Sketcher.Constraint("Equal", 27, 35),
    Sketcher.Constraint("Equal", 13, 29),
    Sketcher.Constraint("Radius", 0, Q("0.02 in")),
    Sketcher.Constraint("Radius", 8, Q("0.04 in")),
    Sketcher.Constraint("Diameter", 78, Q("0.205 in")),
    Sketcher.Constraint("Radius", 1, Q("0.083 in")),
    Sketcher.Constraint("Radius", 10, Q("0.125 in")),
    Sketcher.Constraint("Radius", 71, Q("0.045 in")),
    Sketcher.Constraint("DistanceX", 0, 3, -1, 1, Q("0.5 in")),
    Sketcher.Constraint("DistanceY", 2, 3, -1, 1, Q("0.5 in")),
    Sketcher.Constraint("Radius", 6, Q("0.0435 in")),
    Sketcher.Constraint("DistanceX", 3, 1, 3, 2, Q("0.127 in")),
    Sketcher.Constraint("DistanceY", 65, 2, 65, 1, Q("0.418 in")),
    Sketcher.Constraint("DistanceY", 69, 1, 69, 2, Q("0.505 in")),
    Sketcher.Constraint("DistanceX", 11, 1, 11, 2, Q("0.1284 in")),
    Sketcher.Constraint("DistanceX", 68, 3, -1, 1, Q("0.373 in")),
    Sketcher.Constraint("Distance", 9, Q("0.1847 in")),
    Sketcher.Constraint("Distance", 72, Q("0.1813 in")),
    Sketcher.Constraint("DistanceX", 5, 1, 5, 2, Q("1.0063 mm")),
])
pad1 = body.newObject("PartDesign::Pad", "Pad")
pad1.Profile = sketch1
pad1.Length = Q("9 in")
pad1.Reversed = True

doc.recompute()
